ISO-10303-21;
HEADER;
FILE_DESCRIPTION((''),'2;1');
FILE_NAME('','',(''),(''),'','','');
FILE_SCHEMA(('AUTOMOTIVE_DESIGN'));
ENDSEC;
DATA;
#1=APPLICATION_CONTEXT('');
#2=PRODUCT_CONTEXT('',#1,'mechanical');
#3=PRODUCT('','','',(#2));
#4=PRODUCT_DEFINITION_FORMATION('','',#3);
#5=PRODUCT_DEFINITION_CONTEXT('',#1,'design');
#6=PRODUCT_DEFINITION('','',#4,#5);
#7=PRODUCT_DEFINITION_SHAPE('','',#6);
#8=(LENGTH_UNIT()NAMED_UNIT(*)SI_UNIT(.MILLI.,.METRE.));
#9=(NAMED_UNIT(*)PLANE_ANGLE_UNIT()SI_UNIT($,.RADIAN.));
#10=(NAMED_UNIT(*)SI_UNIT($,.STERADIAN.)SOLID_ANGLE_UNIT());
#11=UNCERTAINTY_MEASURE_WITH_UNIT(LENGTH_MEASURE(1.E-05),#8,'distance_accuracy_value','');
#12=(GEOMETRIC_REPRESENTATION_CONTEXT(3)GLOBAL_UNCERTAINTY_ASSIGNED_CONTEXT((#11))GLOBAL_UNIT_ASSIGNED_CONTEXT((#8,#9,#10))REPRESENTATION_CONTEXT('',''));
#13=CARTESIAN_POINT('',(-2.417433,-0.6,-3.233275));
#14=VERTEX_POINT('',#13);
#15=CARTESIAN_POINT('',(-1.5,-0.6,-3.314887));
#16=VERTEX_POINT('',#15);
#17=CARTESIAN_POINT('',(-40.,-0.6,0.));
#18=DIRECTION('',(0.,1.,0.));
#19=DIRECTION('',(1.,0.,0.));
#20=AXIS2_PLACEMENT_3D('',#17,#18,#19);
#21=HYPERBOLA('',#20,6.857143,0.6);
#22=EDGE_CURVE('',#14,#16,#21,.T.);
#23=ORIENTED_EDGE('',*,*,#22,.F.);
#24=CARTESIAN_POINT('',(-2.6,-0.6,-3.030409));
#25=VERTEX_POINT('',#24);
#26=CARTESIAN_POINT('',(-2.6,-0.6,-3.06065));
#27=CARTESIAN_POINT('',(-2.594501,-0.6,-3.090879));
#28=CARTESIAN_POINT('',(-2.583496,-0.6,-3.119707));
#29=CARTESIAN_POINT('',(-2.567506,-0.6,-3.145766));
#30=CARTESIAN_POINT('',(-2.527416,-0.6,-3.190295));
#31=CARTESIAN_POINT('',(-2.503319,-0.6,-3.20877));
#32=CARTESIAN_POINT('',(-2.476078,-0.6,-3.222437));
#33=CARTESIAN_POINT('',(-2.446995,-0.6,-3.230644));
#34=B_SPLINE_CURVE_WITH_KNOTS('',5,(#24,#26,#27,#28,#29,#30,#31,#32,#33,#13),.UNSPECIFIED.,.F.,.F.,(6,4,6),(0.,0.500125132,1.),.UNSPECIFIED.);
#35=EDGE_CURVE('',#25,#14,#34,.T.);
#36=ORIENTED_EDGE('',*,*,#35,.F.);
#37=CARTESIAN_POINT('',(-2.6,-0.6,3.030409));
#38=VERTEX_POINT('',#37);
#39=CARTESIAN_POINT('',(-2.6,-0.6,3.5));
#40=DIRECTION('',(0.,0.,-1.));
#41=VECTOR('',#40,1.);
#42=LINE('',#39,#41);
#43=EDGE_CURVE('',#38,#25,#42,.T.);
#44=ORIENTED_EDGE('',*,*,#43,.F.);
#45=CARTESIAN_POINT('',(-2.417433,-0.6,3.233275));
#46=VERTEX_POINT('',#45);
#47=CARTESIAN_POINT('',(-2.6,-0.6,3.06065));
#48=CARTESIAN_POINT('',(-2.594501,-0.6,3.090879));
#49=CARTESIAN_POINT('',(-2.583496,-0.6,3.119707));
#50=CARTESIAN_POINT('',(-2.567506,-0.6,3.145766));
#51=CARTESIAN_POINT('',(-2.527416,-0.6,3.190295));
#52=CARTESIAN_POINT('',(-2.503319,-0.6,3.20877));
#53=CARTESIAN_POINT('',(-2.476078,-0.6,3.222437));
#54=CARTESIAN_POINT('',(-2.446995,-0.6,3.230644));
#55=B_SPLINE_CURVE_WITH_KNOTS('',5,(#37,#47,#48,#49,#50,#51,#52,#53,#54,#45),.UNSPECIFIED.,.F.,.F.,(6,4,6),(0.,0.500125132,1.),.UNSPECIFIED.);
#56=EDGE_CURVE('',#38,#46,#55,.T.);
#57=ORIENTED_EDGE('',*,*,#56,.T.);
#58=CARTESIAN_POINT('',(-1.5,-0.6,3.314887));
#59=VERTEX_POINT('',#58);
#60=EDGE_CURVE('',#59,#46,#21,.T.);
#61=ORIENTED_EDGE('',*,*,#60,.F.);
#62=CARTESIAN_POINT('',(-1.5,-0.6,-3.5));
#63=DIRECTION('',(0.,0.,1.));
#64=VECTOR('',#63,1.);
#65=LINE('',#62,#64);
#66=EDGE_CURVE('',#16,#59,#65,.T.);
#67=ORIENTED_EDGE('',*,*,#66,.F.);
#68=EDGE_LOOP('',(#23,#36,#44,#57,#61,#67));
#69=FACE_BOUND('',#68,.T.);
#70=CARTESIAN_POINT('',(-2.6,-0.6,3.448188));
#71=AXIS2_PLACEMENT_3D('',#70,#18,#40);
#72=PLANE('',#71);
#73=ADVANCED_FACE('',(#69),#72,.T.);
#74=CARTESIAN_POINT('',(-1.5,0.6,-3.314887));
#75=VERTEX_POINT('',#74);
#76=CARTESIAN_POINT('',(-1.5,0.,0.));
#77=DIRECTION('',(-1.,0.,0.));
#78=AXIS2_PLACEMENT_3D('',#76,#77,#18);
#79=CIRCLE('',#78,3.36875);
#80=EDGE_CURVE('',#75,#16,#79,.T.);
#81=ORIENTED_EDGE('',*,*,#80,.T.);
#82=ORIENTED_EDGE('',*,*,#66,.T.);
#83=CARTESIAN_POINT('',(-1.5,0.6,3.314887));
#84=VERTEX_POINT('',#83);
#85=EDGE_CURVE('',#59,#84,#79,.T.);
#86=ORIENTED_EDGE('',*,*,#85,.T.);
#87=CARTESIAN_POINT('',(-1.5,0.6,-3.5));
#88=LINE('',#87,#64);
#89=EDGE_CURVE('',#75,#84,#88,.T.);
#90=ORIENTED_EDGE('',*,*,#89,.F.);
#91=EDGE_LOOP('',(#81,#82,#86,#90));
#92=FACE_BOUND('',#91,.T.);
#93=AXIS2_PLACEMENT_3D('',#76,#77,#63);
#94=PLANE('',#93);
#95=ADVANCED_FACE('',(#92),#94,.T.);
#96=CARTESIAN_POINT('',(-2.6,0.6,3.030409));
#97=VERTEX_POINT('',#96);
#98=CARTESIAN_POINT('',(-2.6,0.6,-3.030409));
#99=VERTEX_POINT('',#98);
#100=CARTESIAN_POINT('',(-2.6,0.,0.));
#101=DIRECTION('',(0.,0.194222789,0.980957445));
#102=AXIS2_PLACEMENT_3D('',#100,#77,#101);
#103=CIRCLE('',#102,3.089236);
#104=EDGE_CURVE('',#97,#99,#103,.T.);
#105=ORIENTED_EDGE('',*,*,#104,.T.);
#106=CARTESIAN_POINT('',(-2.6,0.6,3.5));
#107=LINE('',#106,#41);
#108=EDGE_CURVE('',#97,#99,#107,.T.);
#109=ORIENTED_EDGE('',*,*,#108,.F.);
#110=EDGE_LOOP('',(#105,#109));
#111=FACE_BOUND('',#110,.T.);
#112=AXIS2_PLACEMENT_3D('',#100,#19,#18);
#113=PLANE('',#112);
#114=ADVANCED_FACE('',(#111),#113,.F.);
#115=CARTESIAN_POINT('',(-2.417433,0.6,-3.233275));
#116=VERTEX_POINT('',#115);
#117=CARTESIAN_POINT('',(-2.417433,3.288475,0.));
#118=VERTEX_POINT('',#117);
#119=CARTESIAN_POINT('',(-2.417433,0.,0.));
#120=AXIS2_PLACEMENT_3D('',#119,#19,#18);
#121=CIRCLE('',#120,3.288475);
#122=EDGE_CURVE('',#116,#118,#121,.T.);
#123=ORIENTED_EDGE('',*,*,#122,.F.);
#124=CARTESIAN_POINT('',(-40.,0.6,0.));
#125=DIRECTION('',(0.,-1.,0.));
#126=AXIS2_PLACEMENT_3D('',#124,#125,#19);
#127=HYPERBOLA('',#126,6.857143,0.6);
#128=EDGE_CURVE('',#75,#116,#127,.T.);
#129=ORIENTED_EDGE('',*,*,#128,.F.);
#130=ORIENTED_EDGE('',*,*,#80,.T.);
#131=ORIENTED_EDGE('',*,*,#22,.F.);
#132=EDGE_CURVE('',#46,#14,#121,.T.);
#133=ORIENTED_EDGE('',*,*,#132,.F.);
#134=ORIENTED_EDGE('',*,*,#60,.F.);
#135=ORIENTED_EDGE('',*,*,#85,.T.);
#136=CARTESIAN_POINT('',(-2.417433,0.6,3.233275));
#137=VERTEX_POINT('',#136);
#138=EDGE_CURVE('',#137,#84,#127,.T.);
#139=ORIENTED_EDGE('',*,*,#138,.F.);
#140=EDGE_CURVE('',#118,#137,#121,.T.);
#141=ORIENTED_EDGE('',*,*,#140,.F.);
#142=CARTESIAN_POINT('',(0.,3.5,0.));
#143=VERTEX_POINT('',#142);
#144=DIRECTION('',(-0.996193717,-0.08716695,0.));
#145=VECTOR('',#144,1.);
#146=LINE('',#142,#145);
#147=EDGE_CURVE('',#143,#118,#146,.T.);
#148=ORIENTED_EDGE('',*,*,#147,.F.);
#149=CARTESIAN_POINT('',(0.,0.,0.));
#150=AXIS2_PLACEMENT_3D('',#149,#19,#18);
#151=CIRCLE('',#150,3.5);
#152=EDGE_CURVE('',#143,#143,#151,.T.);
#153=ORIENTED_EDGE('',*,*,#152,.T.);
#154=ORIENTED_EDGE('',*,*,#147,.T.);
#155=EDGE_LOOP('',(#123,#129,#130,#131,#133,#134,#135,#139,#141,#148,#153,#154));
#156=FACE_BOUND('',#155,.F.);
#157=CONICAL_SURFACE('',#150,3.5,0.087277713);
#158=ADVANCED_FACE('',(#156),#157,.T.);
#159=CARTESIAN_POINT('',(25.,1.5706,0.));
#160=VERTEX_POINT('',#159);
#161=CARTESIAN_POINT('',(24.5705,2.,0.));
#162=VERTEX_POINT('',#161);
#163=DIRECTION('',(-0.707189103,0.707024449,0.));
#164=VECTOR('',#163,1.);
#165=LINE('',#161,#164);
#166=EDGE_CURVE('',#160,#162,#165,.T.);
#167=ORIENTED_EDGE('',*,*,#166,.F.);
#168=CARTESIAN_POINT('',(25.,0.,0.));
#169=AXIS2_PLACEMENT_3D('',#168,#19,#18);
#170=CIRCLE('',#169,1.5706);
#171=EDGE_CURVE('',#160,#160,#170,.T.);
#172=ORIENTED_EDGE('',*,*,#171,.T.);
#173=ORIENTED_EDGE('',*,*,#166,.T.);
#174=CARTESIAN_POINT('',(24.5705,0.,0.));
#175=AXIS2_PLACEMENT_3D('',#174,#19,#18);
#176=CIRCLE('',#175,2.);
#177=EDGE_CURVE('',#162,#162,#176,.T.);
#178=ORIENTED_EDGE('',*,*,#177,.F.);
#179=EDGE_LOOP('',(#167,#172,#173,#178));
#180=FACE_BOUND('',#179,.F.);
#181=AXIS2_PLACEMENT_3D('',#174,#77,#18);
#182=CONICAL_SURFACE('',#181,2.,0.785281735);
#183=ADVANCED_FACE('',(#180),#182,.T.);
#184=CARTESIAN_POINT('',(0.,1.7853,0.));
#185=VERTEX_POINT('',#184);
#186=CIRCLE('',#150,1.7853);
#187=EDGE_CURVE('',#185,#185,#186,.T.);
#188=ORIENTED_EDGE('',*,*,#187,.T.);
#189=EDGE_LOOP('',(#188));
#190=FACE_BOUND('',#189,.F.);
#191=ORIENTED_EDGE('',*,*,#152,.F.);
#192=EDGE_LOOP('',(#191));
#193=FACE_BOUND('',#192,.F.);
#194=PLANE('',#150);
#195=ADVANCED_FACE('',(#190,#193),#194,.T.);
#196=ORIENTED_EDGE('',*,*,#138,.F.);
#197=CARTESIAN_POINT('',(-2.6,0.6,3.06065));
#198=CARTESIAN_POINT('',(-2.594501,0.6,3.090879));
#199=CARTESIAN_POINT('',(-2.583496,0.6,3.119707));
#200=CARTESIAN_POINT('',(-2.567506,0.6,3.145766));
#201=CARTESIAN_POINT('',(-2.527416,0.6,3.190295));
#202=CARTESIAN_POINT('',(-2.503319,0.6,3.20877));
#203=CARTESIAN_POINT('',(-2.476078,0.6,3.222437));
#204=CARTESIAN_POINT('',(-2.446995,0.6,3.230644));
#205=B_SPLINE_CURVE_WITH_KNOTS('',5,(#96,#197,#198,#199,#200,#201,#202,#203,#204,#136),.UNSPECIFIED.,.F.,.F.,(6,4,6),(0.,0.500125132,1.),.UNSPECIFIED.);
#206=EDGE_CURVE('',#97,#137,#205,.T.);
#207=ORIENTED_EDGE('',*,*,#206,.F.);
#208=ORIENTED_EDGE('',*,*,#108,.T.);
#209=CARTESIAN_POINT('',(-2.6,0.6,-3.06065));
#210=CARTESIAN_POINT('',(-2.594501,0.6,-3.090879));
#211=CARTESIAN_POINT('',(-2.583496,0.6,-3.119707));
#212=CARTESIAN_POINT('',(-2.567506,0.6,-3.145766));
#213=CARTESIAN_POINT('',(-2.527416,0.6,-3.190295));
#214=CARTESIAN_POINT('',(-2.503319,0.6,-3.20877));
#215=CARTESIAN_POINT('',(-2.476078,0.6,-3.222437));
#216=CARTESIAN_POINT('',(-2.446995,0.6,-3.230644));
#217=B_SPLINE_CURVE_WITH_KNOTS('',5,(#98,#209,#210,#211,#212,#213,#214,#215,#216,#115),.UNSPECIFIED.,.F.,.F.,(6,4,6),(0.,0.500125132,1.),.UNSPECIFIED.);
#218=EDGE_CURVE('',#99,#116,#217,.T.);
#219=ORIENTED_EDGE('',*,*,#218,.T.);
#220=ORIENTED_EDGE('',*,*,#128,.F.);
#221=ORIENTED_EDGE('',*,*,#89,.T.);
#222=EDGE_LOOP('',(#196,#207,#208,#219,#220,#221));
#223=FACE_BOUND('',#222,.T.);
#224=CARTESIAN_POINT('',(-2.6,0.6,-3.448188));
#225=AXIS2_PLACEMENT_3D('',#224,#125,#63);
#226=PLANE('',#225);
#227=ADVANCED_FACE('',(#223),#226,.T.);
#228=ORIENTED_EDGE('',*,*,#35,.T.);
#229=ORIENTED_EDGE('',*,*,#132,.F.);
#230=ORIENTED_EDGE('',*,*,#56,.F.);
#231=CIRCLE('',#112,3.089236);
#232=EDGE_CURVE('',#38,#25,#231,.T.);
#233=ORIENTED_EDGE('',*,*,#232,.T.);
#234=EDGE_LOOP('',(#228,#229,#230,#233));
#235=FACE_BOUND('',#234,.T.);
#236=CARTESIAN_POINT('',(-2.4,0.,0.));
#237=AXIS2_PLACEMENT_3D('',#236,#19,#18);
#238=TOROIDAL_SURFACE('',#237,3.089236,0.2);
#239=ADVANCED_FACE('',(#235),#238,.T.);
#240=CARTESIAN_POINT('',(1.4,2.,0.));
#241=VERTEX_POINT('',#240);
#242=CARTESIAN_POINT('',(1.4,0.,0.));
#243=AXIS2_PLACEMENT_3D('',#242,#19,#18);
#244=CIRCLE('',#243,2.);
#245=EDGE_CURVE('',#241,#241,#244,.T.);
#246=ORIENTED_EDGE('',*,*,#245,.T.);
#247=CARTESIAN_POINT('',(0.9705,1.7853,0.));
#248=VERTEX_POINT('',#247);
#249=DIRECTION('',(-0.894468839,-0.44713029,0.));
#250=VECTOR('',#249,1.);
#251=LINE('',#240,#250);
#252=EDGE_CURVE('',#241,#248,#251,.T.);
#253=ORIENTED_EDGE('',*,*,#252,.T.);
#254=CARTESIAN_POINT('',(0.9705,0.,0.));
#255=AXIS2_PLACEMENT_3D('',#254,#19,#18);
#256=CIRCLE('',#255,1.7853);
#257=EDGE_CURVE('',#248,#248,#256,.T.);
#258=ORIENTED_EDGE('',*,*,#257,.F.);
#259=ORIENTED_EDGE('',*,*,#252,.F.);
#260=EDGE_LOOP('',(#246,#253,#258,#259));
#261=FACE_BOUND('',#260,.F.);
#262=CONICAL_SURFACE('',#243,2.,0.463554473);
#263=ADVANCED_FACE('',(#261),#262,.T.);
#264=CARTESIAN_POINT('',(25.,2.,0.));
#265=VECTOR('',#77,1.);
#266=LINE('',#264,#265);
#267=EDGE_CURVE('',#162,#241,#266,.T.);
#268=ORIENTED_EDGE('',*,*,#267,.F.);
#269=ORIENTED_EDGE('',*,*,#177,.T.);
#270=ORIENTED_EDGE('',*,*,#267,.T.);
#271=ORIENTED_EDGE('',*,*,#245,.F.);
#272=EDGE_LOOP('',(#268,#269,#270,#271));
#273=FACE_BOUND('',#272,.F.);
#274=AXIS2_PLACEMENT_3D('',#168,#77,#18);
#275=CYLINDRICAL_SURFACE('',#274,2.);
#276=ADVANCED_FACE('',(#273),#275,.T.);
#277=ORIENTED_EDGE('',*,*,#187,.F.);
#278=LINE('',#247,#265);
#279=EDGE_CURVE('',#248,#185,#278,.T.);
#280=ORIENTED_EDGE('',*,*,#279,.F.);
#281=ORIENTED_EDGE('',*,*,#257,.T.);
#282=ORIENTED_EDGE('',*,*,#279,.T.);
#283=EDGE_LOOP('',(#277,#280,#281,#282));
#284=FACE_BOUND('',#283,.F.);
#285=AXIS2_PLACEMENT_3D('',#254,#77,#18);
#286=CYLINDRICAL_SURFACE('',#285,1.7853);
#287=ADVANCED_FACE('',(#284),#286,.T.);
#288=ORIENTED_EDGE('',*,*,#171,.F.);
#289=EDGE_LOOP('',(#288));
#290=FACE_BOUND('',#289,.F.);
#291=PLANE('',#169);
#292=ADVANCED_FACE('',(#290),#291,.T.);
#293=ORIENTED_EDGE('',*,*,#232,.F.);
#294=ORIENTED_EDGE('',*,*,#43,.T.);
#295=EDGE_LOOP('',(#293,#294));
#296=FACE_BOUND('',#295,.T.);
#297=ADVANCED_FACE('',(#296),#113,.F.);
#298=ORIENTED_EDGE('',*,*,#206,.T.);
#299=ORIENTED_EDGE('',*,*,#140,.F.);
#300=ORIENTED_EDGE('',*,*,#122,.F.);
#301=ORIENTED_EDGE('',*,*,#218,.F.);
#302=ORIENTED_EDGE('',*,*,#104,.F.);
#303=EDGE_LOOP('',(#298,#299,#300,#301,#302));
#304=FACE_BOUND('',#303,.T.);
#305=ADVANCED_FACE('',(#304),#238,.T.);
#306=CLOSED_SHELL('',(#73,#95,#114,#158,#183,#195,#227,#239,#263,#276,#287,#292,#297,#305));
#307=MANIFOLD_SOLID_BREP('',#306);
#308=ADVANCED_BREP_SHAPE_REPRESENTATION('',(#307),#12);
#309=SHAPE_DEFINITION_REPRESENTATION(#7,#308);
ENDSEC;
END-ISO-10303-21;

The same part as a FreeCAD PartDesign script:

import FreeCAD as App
import Part
import Sketcher

V = App.Vector
Q = App.Units.Quantity


def edges_at(feature, points):
    """Names of the edges that pass closest to the given points."""
    edges = feature.Shape.Edges
    near = lambda p: min(range(len(edges)), key=lambda i: edges[i].distToShape(Part.Vertex(*p))[0])
    return sorted({f"Edge{near(p) + 1}" for p in points})

doc = App.newDocument("Part")
body = doc.addObject("PartDesign::Body", "Body")

# Sketch on XY plane
sketch1 = body.newObject("Sketcher::SketchObject", "Sketch")
sketch1.AttachmentSupport = (doc.getObject("XY_Plane"), [""])
sketch1.MapMode = "FlatFace"
sketch1.addGeometry(Part.LineSegment(V(-2.6, 3.2725, 0), V(-2.6, 0, 0)), False)
sketch1.addGeometry(Part.LineSegment(V(-2.6, 0, 0), V(25, 0, 0)), False)
sketch1.addGeometry(Part.LineSegment(V(25, 0, 0), V(25, 2, 0)), False)
sketch1.addGeometry(Part.LineSegment(V(25, 2, 0), V(1.4, 2, 0)), False)
sketch1.addGeometry(Part.LineSegment(V(1.4, 2, 0), V(0.9705, 1.7853, 0)), False)
sketch1.addGeometry(Part.LineSegment(V(0.9705, 1.7853, 0), V(0, 1.7853, 0)), False)
sketch1.addGeometry(Part.LineSegment(V(0, 1.7853, 0), V(0, 3.5, 0)), False)
sketch1.addGeometry(Part.LineSegment(V(0, 3.5, 0), V(-2.6, 3.2725, 0)), False)
sketch1.addConstraint(Sketcher.Constraint("Coincident", 0, 2, 1, 1))
sketch1.addConstraint(Sketcher.Constraint("Coincident", 1, 2, 2, 1))
sketch1.addConstraint(Sketcher.Constraint("Coincident", 2, 2, 3, 1))
sketch1.addConstraint(Sketcher.Constraint("Coincident", 3, 2, 4, 1))
sketch1.addConstraint(Sketcher.Constraint("Coincident", 4, 2, 5, 1))
sketch1.addConstraint(Sketcher.Constraint("Coincident", 5, 2, 6, 1))
sketch1.addConstraint(Sketcher.Constraint("Coincident", 6, 2, 7, 1))
sketch1.addConstraint(Sketcher.Constraint("Coincident", 7, 2, 0, 1))
sketch1.addConstraint(Sketcher.Constraint("Vertical", 0))
sketch1.addConstraint(Sketcher.Constraint("Horizontal", 1))
sketch1.addConstraint(Sketcher.Constraint("Vertical", 2))
sketch1.addConstraint(Sketcher.Constraint("Horizontal", 3))
sketch1.addConstraint(Sketcher.Constraint("Horizontal", 5))
sketch1.addConstraint(Sketcher.Constraint("Vertical", 6))
sketch1.addConstraint(Sketcher.Constraint("PointOnObject", 0, 2, -1))
sketch1.addConstraint(Sketcher.Constraint("PointOnObject", 5, 2, -2))
sketch1.addConstraint(Sketcher.Constraint("DistanceX", 3, 2, 3, 1, Q("23.6 mm")))
sketch1.addConstraint(Sketcher.Constraint("DistanceX", -1, 1, 1, 2, Q("25 mm")))
sketch1.addConstraint(Sketcher.Constraint("DistanceX", 0, 2, 3, 2, Q("4 mm")))
sketch1.addConstraint(Sketcher.Constraint("DistanceY", 2, 1, 2, 2, Q("2 mm")))
sketch1.addConstraint(Sketcher.Constraint("Angle", 7, Q("-174.9994 deg")))
sketch1.addConstraint(Sketcher.Constraint("DistanceY", -1, 1, 6, 2, Q("3.5 mm")))
sketch1.addConstraint(Sketcher.Constraint("Angle", 4, Q("-153.4403 deg")))
sketch1.addConstraint(Sketcher.Constraint("DistanceX", 4, 2, 3, 2, Q("0.4295 mm")))
revolution = body.newObject("PartDesign::Revolution", "Revolution")
revolution.Profile = sketch1
revolution.ReferenceAxis = (sketch1, ["H_Axis"])
revolution.Angle = 360
doc.recompute()

fillet = body.newObject("PartDesign::Fillet", "Fillet")
fillet.Base = (revolution, edges_at(revolution, [(-2.6, -3.272, 0)]))
fillet.Radius = 0.2

# Sketch on YZ plane
sketch2 = body.newObject("Sketcher::SketchObject", "Sketch001")
sketch2.AttachmentSupport = (doc.getObject("YZ_Plane"), [""])
sketch2.MapMode = "FlatFace"
sketch2.AttachmentOffset = App.Placement(V(0, 0, -2.6), App.Rotation())
sketch2.addGeometry(Part.LineSegment(V(-0.6, 3.5, 0), V(0.6, 3.5, 0)), False)
sketch2.addGeometry(Part.LineSegment(V(0.6, 3.5, 0), V(0.6, -3.5, 0)), False)
sketch2.addGeometry(Part.LineSegment(V(0.6, -3.5, 0), V(-0.6, -3.5, 0)), False)
sketch2.addGeometry(Part.LineSegment(V(-0.6, -3.5, 0), V(-0.6, 3.5, 0)), False)
sketch2.addConstraint(Sketcher.Constraint("Coincident", 0, 2, 1, 1))
sketch2.addConstraint(Sketcher.Constraint("Coincident", 1, 2, 2, 1))
sketch2.addConstraint(Sketcher.Constraint("Coincident", 2, 2, 3, 1))
sketch2.addConstraint(Sketcher.Constraint("Coincident", 3, 2, 0, 1))
sketch2.addConstraint(Sketcher.Constraint("Horizontal", 0))
sketch2.addConstraint(Sketcher.Constraint("Vertical", 1))
sketch2.addConstraint(Sketcher.Constraint("Horizontal", 2))
sketch2.addConstraint(Sketcher.Constraint("Vertical", 3))
sketch2.addConstraint(Sketcher.Constraint("Symmetric", 0, 2, 2, 2, -1, 1))
sketch2.addConstraint(Sketcher.Constraint("DistanceY", 1, 2, 1, 1, Q("7 mm")))
sketch2.addConstraint(Sketcher.Constraint("DistanceX", 0, 1, 0, 2, Q("1.2 mm")))
pocket1 = body.newObject("PartDesign::Pocket", "Pocket")
pocket1.Profile = sketch2
pocket1.Length = 1.1
pocket1.Reversed = True
doc.recompute()

chamfer = body.newObject("PartDesign::Chamfer", "Chamfer")
chamfer.Base = (pocket1, edges_at(pocket1, [(25, -2, 0)]))
chamfer.ChamferType = "Two distances"
chamfer.Size = 0.4294
chamfer.Size2 = 0.4295

doc.recompute()
